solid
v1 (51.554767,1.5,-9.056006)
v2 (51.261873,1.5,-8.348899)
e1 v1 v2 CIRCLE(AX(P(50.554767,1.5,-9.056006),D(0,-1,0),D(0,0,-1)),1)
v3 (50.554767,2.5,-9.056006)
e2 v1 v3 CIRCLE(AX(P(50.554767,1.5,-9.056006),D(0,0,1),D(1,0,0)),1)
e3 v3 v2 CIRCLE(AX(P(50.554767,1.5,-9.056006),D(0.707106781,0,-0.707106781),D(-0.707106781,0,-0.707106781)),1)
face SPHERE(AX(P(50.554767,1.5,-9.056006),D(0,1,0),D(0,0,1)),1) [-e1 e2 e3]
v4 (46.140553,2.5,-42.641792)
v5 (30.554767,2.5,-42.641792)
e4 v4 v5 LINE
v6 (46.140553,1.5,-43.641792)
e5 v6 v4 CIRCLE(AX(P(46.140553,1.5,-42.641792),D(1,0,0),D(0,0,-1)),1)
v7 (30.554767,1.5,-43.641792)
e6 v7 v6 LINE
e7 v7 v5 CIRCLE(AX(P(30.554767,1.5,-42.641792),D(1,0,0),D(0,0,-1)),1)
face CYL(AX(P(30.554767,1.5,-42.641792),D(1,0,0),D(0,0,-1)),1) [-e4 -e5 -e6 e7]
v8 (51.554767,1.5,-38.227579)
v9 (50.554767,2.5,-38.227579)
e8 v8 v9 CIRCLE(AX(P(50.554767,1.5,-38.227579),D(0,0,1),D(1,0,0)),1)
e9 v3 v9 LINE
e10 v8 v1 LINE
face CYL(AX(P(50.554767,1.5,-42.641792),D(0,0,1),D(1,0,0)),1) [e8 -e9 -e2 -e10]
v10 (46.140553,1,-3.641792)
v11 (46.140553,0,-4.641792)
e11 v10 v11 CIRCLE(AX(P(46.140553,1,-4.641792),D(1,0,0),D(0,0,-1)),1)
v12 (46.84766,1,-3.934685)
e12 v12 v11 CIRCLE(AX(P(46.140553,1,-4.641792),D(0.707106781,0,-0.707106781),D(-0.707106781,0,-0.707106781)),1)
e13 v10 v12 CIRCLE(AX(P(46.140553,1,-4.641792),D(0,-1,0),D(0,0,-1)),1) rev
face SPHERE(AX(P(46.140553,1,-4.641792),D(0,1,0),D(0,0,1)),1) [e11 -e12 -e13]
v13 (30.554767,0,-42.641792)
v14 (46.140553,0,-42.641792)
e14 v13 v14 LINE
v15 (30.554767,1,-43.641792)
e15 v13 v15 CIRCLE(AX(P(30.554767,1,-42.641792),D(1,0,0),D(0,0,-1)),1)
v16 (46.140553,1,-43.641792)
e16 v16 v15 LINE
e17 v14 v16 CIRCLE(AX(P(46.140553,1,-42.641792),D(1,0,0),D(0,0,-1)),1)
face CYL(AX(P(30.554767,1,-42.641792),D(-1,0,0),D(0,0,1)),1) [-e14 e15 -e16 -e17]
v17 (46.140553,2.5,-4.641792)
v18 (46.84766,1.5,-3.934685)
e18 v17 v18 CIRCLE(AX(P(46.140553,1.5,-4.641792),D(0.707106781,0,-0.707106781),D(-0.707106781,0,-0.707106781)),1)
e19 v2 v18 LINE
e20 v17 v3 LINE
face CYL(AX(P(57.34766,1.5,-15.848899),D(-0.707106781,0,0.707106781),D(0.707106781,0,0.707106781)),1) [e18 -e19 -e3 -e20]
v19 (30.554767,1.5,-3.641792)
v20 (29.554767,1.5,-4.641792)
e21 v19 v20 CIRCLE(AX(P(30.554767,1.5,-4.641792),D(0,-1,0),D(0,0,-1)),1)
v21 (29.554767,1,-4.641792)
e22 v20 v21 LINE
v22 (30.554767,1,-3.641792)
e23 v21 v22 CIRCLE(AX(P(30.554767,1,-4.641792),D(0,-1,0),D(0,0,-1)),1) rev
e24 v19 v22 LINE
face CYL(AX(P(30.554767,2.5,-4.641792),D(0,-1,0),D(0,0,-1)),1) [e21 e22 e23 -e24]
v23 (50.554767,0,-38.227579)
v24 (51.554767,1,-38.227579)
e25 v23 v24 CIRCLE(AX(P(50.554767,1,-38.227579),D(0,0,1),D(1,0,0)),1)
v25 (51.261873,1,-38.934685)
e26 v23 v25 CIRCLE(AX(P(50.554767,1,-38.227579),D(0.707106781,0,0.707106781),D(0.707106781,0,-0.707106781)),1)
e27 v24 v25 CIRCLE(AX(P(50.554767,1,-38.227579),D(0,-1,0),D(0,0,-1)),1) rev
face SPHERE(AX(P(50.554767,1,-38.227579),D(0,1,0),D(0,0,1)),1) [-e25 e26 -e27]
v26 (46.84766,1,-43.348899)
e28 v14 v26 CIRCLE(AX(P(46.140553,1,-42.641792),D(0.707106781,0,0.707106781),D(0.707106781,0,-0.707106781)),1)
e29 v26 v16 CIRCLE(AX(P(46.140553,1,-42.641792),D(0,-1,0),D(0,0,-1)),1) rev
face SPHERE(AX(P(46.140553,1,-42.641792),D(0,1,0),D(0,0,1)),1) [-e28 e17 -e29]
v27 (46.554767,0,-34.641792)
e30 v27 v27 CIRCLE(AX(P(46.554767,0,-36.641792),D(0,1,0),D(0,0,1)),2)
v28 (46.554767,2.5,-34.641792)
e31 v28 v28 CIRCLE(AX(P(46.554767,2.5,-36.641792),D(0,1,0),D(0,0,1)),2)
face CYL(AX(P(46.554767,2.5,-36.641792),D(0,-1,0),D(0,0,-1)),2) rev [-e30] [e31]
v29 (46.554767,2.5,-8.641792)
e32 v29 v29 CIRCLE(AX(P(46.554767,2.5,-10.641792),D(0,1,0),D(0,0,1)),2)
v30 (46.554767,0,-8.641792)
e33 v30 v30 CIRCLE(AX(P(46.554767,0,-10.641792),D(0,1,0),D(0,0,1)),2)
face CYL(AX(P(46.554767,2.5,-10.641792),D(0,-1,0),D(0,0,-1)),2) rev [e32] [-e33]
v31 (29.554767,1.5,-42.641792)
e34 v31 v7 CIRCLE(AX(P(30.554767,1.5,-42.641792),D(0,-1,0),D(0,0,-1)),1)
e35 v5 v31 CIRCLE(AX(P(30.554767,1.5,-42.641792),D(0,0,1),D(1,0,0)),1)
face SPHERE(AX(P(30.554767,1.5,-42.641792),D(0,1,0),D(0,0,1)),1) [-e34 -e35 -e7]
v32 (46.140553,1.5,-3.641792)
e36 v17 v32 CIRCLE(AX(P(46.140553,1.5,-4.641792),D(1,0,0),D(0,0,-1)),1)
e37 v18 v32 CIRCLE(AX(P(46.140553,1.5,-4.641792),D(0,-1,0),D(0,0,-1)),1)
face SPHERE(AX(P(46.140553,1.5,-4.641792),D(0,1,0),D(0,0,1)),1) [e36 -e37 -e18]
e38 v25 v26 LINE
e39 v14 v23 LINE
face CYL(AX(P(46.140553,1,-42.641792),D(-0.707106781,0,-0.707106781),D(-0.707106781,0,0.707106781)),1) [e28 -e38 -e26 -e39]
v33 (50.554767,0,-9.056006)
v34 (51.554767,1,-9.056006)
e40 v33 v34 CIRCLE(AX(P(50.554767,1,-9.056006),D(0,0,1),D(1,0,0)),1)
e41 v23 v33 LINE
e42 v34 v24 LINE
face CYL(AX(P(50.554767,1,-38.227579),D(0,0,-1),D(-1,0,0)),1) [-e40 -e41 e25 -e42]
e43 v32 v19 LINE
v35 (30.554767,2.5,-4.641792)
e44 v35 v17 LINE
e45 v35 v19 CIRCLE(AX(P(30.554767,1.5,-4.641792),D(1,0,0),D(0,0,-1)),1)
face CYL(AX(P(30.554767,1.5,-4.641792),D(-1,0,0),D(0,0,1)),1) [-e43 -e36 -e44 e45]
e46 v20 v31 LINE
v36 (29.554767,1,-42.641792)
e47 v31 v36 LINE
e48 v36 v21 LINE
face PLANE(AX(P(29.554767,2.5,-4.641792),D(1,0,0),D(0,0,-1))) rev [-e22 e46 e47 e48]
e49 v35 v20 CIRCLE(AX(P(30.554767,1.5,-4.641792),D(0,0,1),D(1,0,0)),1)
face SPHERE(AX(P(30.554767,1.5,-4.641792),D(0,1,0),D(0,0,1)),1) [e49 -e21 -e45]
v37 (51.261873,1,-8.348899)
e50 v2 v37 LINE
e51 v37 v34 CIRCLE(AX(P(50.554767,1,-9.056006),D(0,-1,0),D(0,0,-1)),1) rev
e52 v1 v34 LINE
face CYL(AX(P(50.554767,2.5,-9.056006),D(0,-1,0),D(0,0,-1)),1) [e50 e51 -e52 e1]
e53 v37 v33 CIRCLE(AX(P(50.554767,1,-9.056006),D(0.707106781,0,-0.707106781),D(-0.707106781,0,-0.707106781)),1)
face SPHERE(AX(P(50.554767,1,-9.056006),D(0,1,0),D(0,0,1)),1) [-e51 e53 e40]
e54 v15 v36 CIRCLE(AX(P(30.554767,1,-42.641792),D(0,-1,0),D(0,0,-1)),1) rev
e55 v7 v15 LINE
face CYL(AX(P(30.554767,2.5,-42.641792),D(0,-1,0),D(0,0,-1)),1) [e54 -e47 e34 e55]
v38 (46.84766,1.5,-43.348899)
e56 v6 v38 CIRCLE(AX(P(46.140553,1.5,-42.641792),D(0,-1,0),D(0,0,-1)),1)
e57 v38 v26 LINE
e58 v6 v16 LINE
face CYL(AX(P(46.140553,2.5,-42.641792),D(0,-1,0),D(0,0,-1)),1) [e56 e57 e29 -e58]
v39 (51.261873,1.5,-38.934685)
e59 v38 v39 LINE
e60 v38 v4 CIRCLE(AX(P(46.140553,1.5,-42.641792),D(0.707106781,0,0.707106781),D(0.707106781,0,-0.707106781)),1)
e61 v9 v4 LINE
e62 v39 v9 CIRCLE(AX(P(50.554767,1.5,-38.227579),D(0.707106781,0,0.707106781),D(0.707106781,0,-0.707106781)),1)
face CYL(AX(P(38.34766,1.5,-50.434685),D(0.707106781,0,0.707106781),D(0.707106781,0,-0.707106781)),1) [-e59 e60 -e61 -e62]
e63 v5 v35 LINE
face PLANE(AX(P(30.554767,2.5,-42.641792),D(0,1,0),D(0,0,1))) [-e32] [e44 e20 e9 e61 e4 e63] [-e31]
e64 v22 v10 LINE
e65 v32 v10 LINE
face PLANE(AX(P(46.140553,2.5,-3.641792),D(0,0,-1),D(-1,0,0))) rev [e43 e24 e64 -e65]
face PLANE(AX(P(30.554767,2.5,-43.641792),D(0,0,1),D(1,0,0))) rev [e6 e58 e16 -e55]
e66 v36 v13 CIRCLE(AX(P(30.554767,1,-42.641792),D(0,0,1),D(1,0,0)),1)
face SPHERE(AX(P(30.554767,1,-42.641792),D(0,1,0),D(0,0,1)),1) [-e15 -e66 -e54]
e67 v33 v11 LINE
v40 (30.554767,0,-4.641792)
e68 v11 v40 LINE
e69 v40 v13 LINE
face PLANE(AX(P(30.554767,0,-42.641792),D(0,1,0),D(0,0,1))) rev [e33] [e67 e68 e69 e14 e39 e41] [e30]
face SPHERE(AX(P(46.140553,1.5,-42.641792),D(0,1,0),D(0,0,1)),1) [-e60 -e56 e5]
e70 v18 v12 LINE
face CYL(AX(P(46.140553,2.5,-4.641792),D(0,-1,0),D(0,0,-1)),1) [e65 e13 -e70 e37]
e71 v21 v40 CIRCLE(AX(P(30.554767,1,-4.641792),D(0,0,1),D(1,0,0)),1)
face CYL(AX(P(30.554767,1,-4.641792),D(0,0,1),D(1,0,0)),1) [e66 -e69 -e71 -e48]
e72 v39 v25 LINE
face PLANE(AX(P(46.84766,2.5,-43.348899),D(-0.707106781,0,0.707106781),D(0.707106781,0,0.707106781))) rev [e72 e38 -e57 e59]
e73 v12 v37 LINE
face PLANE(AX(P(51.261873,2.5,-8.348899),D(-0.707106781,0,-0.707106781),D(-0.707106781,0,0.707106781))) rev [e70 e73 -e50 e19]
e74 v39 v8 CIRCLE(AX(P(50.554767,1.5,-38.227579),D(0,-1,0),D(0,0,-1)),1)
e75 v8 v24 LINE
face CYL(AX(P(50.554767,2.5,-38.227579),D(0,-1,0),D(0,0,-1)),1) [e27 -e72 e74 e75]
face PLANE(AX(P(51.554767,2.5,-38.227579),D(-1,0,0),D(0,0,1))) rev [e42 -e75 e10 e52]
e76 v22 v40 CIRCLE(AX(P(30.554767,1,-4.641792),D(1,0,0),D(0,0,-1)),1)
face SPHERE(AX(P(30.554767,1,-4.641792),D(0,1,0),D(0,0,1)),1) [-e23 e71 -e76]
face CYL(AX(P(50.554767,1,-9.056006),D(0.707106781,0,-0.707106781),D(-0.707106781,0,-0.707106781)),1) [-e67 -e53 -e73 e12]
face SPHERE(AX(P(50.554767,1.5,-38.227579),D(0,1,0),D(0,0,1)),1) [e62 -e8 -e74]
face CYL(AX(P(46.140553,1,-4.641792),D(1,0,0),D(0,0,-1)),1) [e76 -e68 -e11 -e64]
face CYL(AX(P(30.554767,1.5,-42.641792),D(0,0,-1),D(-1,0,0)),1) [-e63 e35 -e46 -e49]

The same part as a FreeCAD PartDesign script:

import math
import FreeCAD as App
import Part
import Sketcher
from FreeCAD import Vector


def edges_at(feature, points):
    """Names of the edges that pass closest to the given points."""
    edges = feature.Shape.Edges
    near = lambda p: min(range(len(edges)), key=lambda i: edges[i].distToShape(Part.Vertex(*p))[0])
    return sorted({f"Edge{near(p) + 1}" for p in points})

doc = App.newDocument("Part")
body = doc.addObject("PartDesign::Body", "Body")

sketch1 = body.newObject("Sketcher::SketchObject", "Sketch")
sketch1.AttachmentSupport = (doc.getObject("XZ_Plane"), [""])
sketch1.MapMode = "FlatFace"
sketch1.addGeometry([
    Part.LineSegment(Vector(29.6, -42.6, 0), Vector(29.6, -4.6, 0)),
    Part.ArcOfCircle(Part.Circle(Vector(30.6, -4.6, 0), Vector(0, 0, 1), 1), math.radians(90), math.radians(180)),
    Part.LineSegment(Vector(30.6, -3.6, 0), Vector(46.1, -3.6, 0)),
    Part.ArcOfCircle(Part.Circle(Vector(46.1, -4.6, 0), Vector(0, 0, 1), 1), math.radians(45), math.radians(90)),
    Part.LineSegment(Vector(46.8, -3.9, 0), Vector(51.3, -8.3, 0)),
    Part.ArcOfCircle(Part.Circle(Vector(50.6, -9.1, 0), Vector(0, 0, 1), 1), math.radians(0), math.radians(45)),
    Part.LineSegment(Vector(51.6, -9.1, 0), Vector(51.6, -38.2, 0)),
    Part.ArcOfCircle(Part.Circle(Vector(50.6, -38.2, 0), Vector(0, 0, 1), 1), math.radians(-45), math.radians(0)),
    Part.LineSegment(Vector(51.3, -38.9, 0), Vector(46.8, -43.3, 0)),
    Part.ArcOfCircle(Part.Circle(Vector(46.1, -42.6, 0), Vector(0, 0, 1), 1), math.radians(-90), math.radians(-45)),
    Part.LineSegment(Vector(46.1, -43.6, 0), Vector(30.6, -43.6, 0)),
    Part.ArcOfCircle(Part.Circle(Vector(30.6, -42.6, 0), Vector(0, 0, 1), 1), math.radians(-180), math.radians(-90)),
    Part.Circle(Vector(46.6, -10.6, 0), Vector(0, 0, 1), 2),
    Part.Circle(Vector(46.6, -36.6, 0), Vector(0, 0, 1), 2),
], False)
sketch1.addConstraint([
    Sketcher.Constraint("Tangent", 0, 2, 1, 2),
    Sketcher.Constraint("Tangent", 1, 1, 2, 1),
    Sketcher.Constraint("Tangent", 2, 2, 3, 2),
    Sketcher.Constraint("Tangent", 3, 1, 4, 1),
    Sketcher.Constraint("Tangent", 4, 2, 5, 2),
    Sketcher.Constraint("Tangent", 5, 1, 6, 1),
    Sketcher.Constraint("Tangent", 6, 2, 7, 2),
    Sketcher.Constraint("Tangent", 7, 1, 8, 1),
    Sketcher.Constraint("Tangent", 8, 2, 9, 2),
    Sketcher.Constraint("Tangent", 9, 1, 10, 1),
    Sketcher.Constraint("Tangent", 10, 2, 11, 2),
    Sketcher.Constraint("Tangent", 11, 1, 0, 1),
    Sketcher.Constraint("Vertical", 0),
    Sketcher.Constraint("Horizontal", 2),
    Sketcher.Constraint("Vertical", 6),
    Sketcher.Constraint("Horizontal", 10),
    Sketcher.Constraint("Equal", 1, 3),
    Sketcher.Constraint("Equal", 3, 5),
    Sketcher.Constraint("Equal", 5, 7),
    Sketcher.Constraint("Equal", 7, 9),
    Sketcher.Constraint("Equal", 9, 11),
    Sketcher.Constraint("Equal", 12, 13),
    Sketcher.Constraint("Perpendicular", 4, 8),
    Sketcher.Constraint("Vertical", 3, 3, 9, 3),
    Sketcher.Constraint("Vertical", 12, 3, 13, 3),
    Sketcher.Constraint("Vertical", 4, 2, 7, 1),
    Sketcher.Constraint("Diameter", 12, 4.0),
    Sketcher.Constraint("Radius", 1, 1.0),
    Sketcher.Constraint("DistanceY", 0, 1, 0, 2, 38.0),
    Sketcher.Constraint("DistanceX", 1, 3, 5, 3, 20.0),
    Sketcher.Constraint("DistanceX", 12, 3, 5, 3, 4.0),
    Sketcher.Constraint("DistanceY", 12, 3, 3, 3, 6.0),
    Sketcher.Constraint("DistanceY", 9, 3, 13, 3, 6.0),
    Sketcher.Constraint("DistanceY", 4, 2, -1, 1, 8.348899),
    Sketcher.Constraint("DistanceY", 8, 2, -1, 1, 43.348899),
    Sketcher.Constraint("DistanceX", -1, 1, 3, 1, 46.84766),
])
pad1 = body.newObject("PartDesign::Pad", "Pad")
pad1.Profile = sketch1
pad1.Length = 2.5
pad1.Reversed = True
doc.recompute()

fillet = body.newObject("PartDesign::Fillet", "Fillet")
fillet.Base = (pad1, edges_at(pad1, [
    (29.848, 2.5, -3.935),
    (29.848, 0, -43.349),
    (38.348, 0, -43.642),
    (46.523, 0, -43.566),
    (49.055, 0, -41.142),
    (51.479, 0, -38.61),
    (51.555, 0, -23.642),
    (38.348, 2.5, -3.642),
    (51.479, 0, -8.673),
    (49.055, 0, -6.142),
    (46.523, 0, -3.718),
    (38.348, 0, -3.642),
    (29.848, 0, -3.935),
    (29.555, 0, -23.642),
    (46.523, 2.5, -3.718),
    (49.055, 2.5, -6.142),
    (51.479, 2.5, -8.673),
    (51.555, 2.5, -23.642),
    (51.479, 2.5, -38.61),
    (49.055, 2.5, -41.142),
    (29.555, 2.5, -23.642),
    (46.523, 2.5, -43.566),
    (38.348, 2.5, -43.642),
    (29.848, 2.5, -43.349),
]))
fillet.Radius = 1

doc.recompute()
